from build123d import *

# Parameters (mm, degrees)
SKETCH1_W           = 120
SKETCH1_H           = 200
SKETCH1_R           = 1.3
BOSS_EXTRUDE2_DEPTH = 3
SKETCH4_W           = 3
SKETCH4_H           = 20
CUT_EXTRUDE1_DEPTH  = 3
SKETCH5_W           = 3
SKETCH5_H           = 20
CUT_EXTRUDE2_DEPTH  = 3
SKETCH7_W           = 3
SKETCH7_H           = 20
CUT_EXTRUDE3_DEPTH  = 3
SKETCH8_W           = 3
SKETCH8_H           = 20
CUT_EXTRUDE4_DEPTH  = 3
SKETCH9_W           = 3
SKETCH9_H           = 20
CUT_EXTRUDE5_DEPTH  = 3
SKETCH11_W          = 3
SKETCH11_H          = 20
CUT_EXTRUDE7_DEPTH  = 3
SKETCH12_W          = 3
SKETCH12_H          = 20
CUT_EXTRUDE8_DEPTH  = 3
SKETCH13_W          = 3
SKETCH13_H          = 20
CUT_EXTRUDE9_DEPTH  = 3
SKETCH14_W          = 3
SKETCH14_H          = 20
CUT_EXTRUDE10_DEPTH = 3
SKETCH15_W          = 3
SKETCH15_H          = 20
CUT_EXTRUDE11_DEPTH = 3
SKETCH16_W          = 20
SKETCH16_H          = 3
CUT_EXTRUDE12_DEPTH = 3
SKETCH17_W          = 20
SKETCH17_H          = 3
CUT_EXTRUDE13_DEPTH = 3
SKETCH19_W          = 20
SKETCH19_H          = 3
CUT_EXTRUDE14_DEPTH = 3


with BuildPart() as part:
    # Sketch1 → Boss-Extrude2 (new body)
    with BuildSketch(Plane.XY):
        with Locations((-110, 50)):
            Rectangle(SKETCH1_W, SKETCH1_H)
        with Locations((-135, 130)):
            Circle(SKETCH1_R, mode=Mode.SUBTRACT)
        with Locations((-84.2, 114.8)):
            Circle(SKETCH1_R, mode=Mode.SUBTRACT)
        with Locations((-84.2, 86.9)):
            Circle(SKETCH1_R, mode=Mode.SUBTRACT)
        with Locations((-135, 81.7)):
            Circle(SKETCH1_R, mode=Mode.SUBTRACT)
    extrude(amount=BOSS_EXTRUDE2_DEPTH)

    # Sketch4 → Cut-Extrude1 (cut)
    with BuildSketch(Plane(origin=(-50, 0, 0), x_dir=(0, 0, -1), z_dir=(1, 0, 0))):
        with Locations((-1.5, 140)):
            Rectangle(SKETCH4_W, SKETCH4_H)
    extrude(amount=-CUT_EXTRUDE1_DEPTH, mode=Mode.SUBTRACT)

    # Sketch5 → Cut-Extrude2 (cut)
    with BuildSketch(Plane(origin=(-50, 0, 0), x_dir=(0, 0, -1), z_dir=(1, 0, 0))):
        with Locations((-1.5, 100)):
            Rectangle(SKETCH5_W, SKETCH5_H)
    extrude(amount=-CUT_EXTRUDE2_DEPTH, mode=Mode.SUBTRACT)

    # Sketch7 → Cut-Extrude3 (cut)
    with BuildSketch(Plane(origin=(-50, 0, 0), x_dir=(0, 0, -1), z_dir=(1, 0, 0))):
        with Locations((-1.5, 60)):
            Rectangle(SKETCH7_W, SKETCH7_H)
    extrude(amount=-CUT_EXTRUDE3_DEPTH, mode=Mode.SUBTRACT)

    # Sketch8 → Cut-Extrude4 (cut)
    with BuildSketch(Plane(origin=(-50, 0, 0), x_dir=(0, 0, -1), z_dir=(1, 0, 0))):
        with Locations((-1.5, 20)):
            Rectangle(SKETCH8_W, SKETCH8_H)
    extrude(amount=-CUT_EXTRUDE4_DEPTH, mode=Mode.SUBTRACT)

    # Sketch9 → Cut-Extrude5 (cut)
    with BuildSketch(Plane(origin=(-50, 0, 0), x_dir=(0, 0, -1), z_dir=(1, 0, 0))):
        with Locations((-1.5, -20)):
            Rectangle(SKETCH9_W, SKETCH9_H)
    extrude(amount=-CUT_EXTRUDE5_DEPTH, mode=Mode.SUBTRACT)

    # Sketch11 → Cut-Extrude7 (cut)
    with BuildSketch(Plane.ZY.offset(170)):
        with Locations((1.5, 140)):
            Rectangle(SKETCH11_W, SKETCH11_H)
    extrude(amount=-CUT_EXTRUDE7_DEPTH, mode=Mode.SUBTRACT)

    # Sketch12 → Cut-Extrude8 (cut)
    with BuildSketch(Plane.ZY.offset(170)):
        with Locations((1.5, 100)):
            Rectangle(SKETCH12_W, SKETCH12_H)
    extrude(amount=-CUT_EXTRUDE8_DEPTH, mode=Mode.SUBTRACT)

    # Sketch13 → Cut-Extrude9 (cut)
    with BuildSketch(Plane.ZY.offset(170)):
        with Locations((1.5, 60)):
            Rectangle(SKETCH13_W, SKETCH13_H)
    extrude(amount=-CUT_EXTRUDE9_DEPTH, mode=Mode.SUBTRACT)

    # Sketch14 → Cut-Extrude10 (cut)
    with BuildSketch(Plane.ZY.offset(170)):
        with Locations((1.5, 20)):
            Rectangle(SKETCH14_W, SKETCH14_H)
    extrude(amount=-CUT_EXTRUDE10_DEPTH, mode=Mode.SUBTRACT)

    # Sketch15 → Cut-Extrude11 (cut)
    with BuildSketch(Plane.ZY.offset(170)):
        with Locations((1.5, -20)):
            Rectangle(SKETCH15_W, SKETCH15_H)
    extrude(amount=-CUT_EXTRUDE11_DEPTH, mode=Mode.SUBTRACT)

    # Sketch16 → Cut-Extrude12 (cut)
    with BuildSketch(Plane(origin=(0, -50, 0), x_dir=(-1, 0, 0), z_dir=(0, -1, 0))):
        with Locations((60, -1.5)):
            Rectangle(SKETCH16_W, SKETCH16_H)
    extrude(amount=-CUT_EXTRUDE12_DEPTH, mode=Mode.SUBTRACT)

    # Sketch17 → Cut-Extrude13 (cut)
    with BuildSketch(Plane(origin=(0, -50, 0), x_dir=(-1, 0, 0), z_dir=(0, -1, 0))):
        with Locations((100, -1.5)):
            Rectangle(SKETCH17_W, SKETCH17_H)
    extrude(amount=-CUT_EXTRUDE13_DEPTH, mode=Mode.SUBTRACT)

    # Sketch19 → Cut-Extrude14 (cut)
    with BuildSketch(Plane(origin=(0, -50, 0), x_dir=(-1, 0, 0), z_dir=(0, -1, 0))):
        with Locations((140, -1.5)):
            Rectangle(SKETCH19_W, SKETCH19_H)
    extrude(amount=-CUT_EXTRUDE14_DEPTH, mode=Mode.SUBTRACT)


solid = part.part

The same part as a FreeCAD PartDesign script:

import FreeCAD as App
import Part
import Sketcher

V = App.Vector

doc = App.newDocument("Part")
params = doc.addObject("Spreadsheet::Sheet", "Params")
for row, (alias, value) in enumerate([
    ("sketch1_diameter", "2.6 mm"),
    ("sketch1_width", "120 mm"),
    ("sketch1_height", "200 mm"),
    ("pad1_length", "3 mm"),
    ("sketch2_width", "20 mm"),
    ("sketch2_height", "3 mm"),
    ("pocket1_length", "3 mm"),
    ("sketch3_width", "20 mm"),
    ("sketch3_height", "3 mm"),
    ("pocket2_length", "3 mm"),
    ("sketch4_width", "20 mm"),
    ("sketch4_height", "3 mm"),
    ("pocket3_length", "3 mm"),
    ("sketch5_width", "20 mm"),
    ("sketch5_height", "3 mm"),
    ("pocket4_length", "3 mm"),
    ("sketch6_width", "20 mm"),
    ("sketch6_height", "3 mm"),
    ("pocket5_length", "3 mm"),
    ("sketch7_width", "20 mm"),
    ("sketch7_height", "3 mm"),
    ("pocket6_length", "3 mm"),
    ("sketch8_width", "20 mm"),
    ("sketch8_height", "3 mm"),
    ("pocket7_length", "3 mm"),
    ("sketch9_width", "20 mm"),
    ("sketch9_height", "3 mm"),
    ("pocket8_length", "3 mm"),
    ("sketch10_width", "20 mm"),
    ("sketch10_height", "3 mm"),
    ("pocket9_length", "3 mm"),
    ("sketch11_width", "20 mm"),
    ("sketch11_height", "3 mm"),
    ("pocket10_length", "3 mm"),
    ("sketch12_width", "20 mm"),
    ("sketch12_height", "3 mm"),
    ("pocket11_length", "3 mm"),
    ("sketch13_width", "20 mm"),
    ("sketch13_height", "3 mm"),
    ("pocket12_length", "3 mm"),
    ("sketch14_width", "20 mm"),
    ("sketch14_height", "3 mm"),
    ("pocket13_length", "3 mm"),
], start=1):
    params.set(f"A{row}", alias)
    params.set(f"B{row}", "=" + value)
    params.setAlias(f"B{row}", alias)

body = doc.addObject("PartDesign::Body", "Body")

sketch1 = body.newObject("Sketcher::SketchObject", "Sketch")
sketch1.AttachmentSupport = (doc.getObject("XY_Plane"), [""])
sketch1.MapMode = "FlatFace"
sketch1.addGeometry(Part.LineSegment(V(-170, 150, 0), V(-170, -50, 0)), False)
sketch1.addGeometry(Part.LineSegment(V(-170, -50, 0), V(-50, -50, 0)), False)
sketch1.addGeometry(Part.LineSegment(V(-50, -50, 0), V(-50, 150, 0)), False)
sketch1.addGeometry(Part.LineSegment(V(-50, 150, 0), V(-170, 150, 0)), False)
sketch1.addGeometry(Part.Circle(V(-135, 81.7, 0), V(0, 0, 1), 1.3), False)
sketch1.addGeometry(Part.Circle(V(-84.2, 86.9, 0), V(0, 0, 1), 1.3), False)
sketch1.addGeometry(Part.Circle(V(-135, 130, 0), V(0, 0, 1), 1.3), False)
sketch1.addGeometry(Part.Circle(V(-84.2, 114.8, 0), V(0, 0, 1), 1.3), False)
sketch1.addConstraint(Sketcher.Constraint("Coincident", 0, 2, 1, 1))
sketch1.addConstraint(Sketcher.Constraint("Coincident", 1, 2, 2, 1))
sketch1.addConstraint(Sketcher.Constraint("Coincident", 2, 2, 3, 1))
sketch1.addConstraint(Sketcher.Constraint("Coincident", 3, 2, 0, 1))
sketch1.addConstraint(Sketcher.Constraint("Vertical", 0))
sketch1.addConstraint(Sketcher.Constraint("Horizontal", 1))
sketch1.addConstraint(Sketcher.Constraint("Vertical", 2))
sketch1.addConstraint(Sketcher.Constraint("Horizontal", 3))
sketch1.addConstraint(Sketcher.Constraint("Equal", 4, 5))
sketch1.addConstraint(Sketcher.Constraint("Equal", 5, 6))
sketch1.addConstraint(Sketcher.Constraint("Equal", 6, 7))
sketch1.addConstraint(Sketcher.Constraint("Vertical", 4, 3, 6, 3))
sketch1.addConstraint(Sketcher.Constraint("Vertical", 5, 3, 7, 3))
sketch1.addConstraint(Sketcher.Constraint("Diameter", 4, 2.6))
sketch1.addConstraint(Sketcher.Constraint("DistanceX", 1, 1, 1, 2, 120.0))
sketch1.addConstraint(Sketcher.Constraint("DistanceY", 0, 2, 0, 1, 200.0))
sketch1.addConstraint(Sketcher.Constraint("DistanceX", 4, 3, -1, 1, 135.0))
sketch1.addConstraint(Sketcher.Constraint("DistanceY", -1, 1, 6, 3, 130.0))
sketch1.addConstraint(Sketcher.Constraint("DistanceX", 0, 2, -1, 1, 170.0))
sketch1.addConstraint(Sketcher.Constraint("DistanceY", 0, 2, -1, 1, 50.0))
sketch1.addConstraint(Sketcher.Constraint("DistanceY", -1, 1, 4, 3, 81.7))
sketch1.addConstraint(Sketcher.Constraint("DistanceX", 5, 3, -1, 1, 84.2))
sketch1.addConstraint(Sketcher.Constraint("DistanceY", -1, 1, 5, 3, 86.9))
sketch1.addConstraint(Sketcher.Constraint("DistanceY", -1, 1, 7, 3, 114.8))
sketch1.setExpression("Constraints[13]", "Params.sketch1_diameter")
sketch1.setExpression("Constraints[14]", "Params.sketch1_width")
sketch1.setExpression("Constraints[15]", "Params.sketch1_height")
pad1 = body.newObject("PartDesign::Pad", "Pad")
pad1.Profile = sketch1
pad1.setExpression("Length", "Params.pad1_length")

sketch2 = body.newObject("Sketcher::SketchObject", "Sketch001")
sketch2.AttachmentSupport = (doc.getObject("YZ_Plane"), [""])
sketch2.MapMode = "FlatFace"
sketch2.AttachmentOffset = App.Placement(V(0, 0, -50), App.Rotation())
sketch2.addGeometry(Part.LineSegment(V(150, 3, 0), V(130, 3, 0)), False)
sketch2.addGeometry(Part.LineSegment(V(130, 3, 0), V(130, 0, 0)), False)
sketch2.addGeometry(Part.LineSegment(V(130, 0, 0), V(150, 0, 0)), False)
sketch2.addGeometry(Part.LineSegment(V(150, 0, 0), V(150, 3, 0)), False)
sketch2.addConstraint(Sketcher.Constraint("Coincident", 0, 2, 1, 1))
sketch2.addConstraint(Sketcher.Constraint("Coincident", 1, 2, 2, 1))
sketch2.addConstraint(Sketcher.Constraint("Coincident", 2, 2, 3, 1))
sketch2.addConstraint(Sketcher.Constraint("Coincident", 3, 2, 0, 1))
sketch2.addConstraint(Sketcher.Constraint("Horizontal", 0))
sketch2.addConstraint(Sketcher.Constraint("Vertical", 1))
sketch2.addConstraint(Sketcher.Constraint("Horizontal", 2))
sketch2.addConstraint(Sketcher.Constraint("Vertical", 3))
sketch2.addConstraint(Sketcher.Constraint("PointOnObject", 1, 2, -1))
sketch2.addConstraint(Sketcher.Constraint("DistanceX", 0, 2, 0, 1, 20.0))
sketch2.addConstraint(Sketcher.Constraint("DistanceY", 1, 2, 1, 1, 3.0))
sketch2.addConstraint(Sketcher.Constraint("DistanceX", -1, 1, 0, 2, 130.0))
sketch2.setExpression("Constraints[9]", "Params.sketch2_width")
sketch2.setExpression("Constraints[10]", "Params.sketch2_height")
pocket1 = body.newObject("PartDesign::Pocket", "Pocket")
pocket1.Profile = sketch2
pocket1.setExpression("Length", "Params.pocket1_length")

sketch3 = body.newObject("Sketcher::SketchObject", "Sketch002")
sketch3.AttachmentSupport = (doc.getObject("YZ_Plane"), [""])
sketch3.MapMode = "FlatFace"
sketch3.AttachmentOffset = App.Placement(V(0, 0, -50), App.Rotation())
sketch3.addGeometry(Part.LineSegment(V(110, 3, 0), V(90, 3, 0)), False)
sketch3.addGeometry(Part.LineSegment(V(90, 3, 0), V(90, 0, 0)), False)
sketch3.addGeometry(Part.LineSegment(V(90, 0, 0), V(110, 0, 0)), False)
sketch3.addGeometry(Part.LineSegment(V(110, 0, 0), V(110, 3, 0)), False)
sketch3.addConstraint(Sketcher.Constraint("Coincident", 0, 2, 1, 1))
sketch3.addConstraint(Sketcher.Constraint("Coincident", 1, 2, 2, 1))
sketch3.addConstraint(Sketcher.Constraint("Coincident", 2, 2, 3, 1))
sketch3.addConstraint(Sketcher.Constraint("Coincident", 3, 2, 0, 1))
sketch3.addConstraint(Sketcher.Constraint("Horizontal", 0))
sketch3.addConstraint(Sketcher.Constraint("Vertical", 1))
sketch3.addConstraint(Sketcher.Constraint("Horizontal", 2))
sketch3.addConstraint(Sketcher.Constraint("Vertical", 3))
sketch3.addConstraint(Sketcher.Constraint("PointOnObject", 1, 2, -1))
sketch3.addConstraint(Sketcher.Constraint("DistanceX", 0, 2, 0, 1, 20.0))
sketch3.addConstraint(Sketcher.Constraint("DistanceY", 1, 2, 1, 1, 3.0))
sketch3.addConstraint(Sketcher.Constraint("DistanceX", -1, 1, 0, 2, 90.0))
sketch3.setExpression("Constraints[9]", "Params.sketch3_width")
sketch3.setExpression("Constraints[10]", "Params.sketch3_height")
pocket2 = body.newObject("PartDesign::Pocket", "Pocket001")
pocket2.Profile = sketch3
pocket2.setExpression("Length", "Params.pocket2_length")

sketch4 = body.newObject("Sketcher::SketchObject", "Sketch003")
sketch4.AttachmentSupport = (doc.getObject("YZ_Plane"), [""])
sketch4.MapMode = "FlatFace"
sketch4.AttachmentOffset = App.Placement(V(0, 0, -50), App.Rotation())
sketch4.addGeometry(Part.LineSegment(V(70, 3, 0), V(50, 3, 0)), False)
sketch4.addGeometry(Part.LineSegment(V(50, 3, 0), V(50, 0, 0)), False)
sketch4.addGeometry(Part.LineSegment(V(50, 0, 0), V(70, 0, 0)), False)
sketch4.addGeometry(Part.LineSegment(V(70, 0, 0), V(70, 3, 0)), False)
sketch4.addConstraint(Sketcher.Constraint("Coincident", 0, 2, 1, 1))
sketch4.addConstraint(Sketcher.Constraint("Coincident", 1, 2, 2, 1))
sketch4.addConstraint(Sketcher.Constraint("Coincident", 2, 2, 3, 1))
sketch4.addConstraint(Sketcher.Constraint("Coincident", 3, 2, 0, 1))
sketch4.addConstraint(Sketcher.Constraint("Horizontal", 0))
sketch4.addConstraint(Sketcher.Constraint("Vertical", 1))
sketch4.addConstraint(Sketcher.Constraint("Horizontal", 2))
sketch4.addConstraint(Sketcher.Constraint("Vertical", 3))
sketch4.addConstraint(Sketcher.Constraint("PointOnObject", 1, 2, -1))
sketch4.addConstraint(Sketcher.Constraint("DistanceX", 0, 2, 0, 1, 20.0))
sketch4.addConstraint(Sketcher.Constraint("DistanceY", 1, 2, 1, 1, 3.0))
sketch4.addConstraint(Sketcher.Constraint("DistanceX", -1, 1, 0, 2, 50.0))
sketch4.setExpression("Constraints[9]", "Params.sketch4_width")
sketch4.setExpression("Constraints[10]", "Params.sketch4_height")
pocket3 = body.newObject("PartDesign::Pocket", "Pocket002")
pocket3.Profile = sketch4
pocket3.setExpression("Length", "Params.pocket3_length")

sketch5 = body.newObject("Sketcher::SketchObject", "Sketch004")
sketch5.AttachmentSupport = (doc.getObject("YZ_Plane"), [""])
sketch5.MapMode = "FlatFace"
sketch5.AttachmentOffset = App.Placement(V(0, 0, -50), App.Rotation())
sketch5.addGeometry(Part.LineSegment(V(30, 3, 0), V(10, 3, 0)), False)
sketch5.addGeometry(Part.LineSegment(V(10, 3, 0), V(10, 0, 0)), False)
sketch5.addGeometry(Part.LineSegment(V(10, 0, 0), V(30, 0, 0)), False)
sketch5.addGeometry(Part.LineSegment(V(30, 0, 0), V(30, 3, 0)), False)
sketch5.addConstraint(Sketcher.Constraint("Coincident", 0, 2, 1, 1))
sketch5.addConstraint(Sketcher.Constraint("Coincident", 1, 2, 2, 1))
sketch5.addConstraint(Sketcher.Constraint("Coincident", 2, 2, 3, 1))
sketch5.addConstraint(Sketcher.Constraint("Coincident", 3, 2, 0, 1))
sketch5.addConstraint(Sketcher.Constraint("Horizontal", 0))
sketch5.addConstraint(Sketcher.Constraint("Vertical", 1))
sketch5.addConstraint(Sketcher.Constraint("Horizontal", 2))
sketch5.addConstraint(Sketcher.Constraint("Vertical", 3))
sketch5.addConstraint(Sketcher.Constraint("PointOnObject", 1, 2, -1))
sketch5.addConstraint(Sketcher.Constraint("DistanceX", 0, 2, 0, 1, 20.0))
sketch5.addConstraint(Sketcher.Constraint("DistanceY", 1, 2, 1, 1, 3.0))
sketch5.addConstraint(Sketcher.Constraint("DistanceX", -1, 1, 0, 2, 10.0))
sketch5.setExpression("Constraints[9]", "Params.sketch5_width")
sketch5.setExpression("Constraints[10]", "Params.sketch5_height")
pocket4 = body.newObject("PartDesign::Pocket", "Pocket003")
pocket4.Profile = sketch5
pocket4.setExpression("Length", "Params.pocket4_length")

sketch6 = body.newObject("Sketcher::SketchObject", "Sketch005")
sketch6.AttachmentSupport = (doc.getObject("YZ_Plane"), [""])
sketch6.MapMode = "FlatFace"
sketch6.AttachmentOffset = App.Placement(V(0, 0, -50), App.Rotation())
sketch6.addGeometry(Part.LineSegment(V(-10, 3, 0), V(-30, 3, 0)), False)
sketch6.addGeometry(Part.LineSegment(V(-30, 3, 0), V(-30, 0, 0)), False)
sketch6.addGeometry(Part.LineSegment(V(-30, 0, 0), V(-10, 0, 0)), False)
sketch6.addGeometry(Part.LineSegment(V(-10, 0, 0), V(-10, 3, 0)), False)
sketch6.addConstraint(Sketcher.Constraint("Coincident", 0, 2, 1, 1))
sketch6.addConstraint(Sketcher.Constraint("Coincident", 1, 2, 2, 1))
sketch6.addConstraint(Sketcher.Constraint("Coincident", 2, 2, 3, 1))
sketch6.addConstraint(Sketcher.Constraint("Coincident", 3, 2, 0, 1))
sketch6.addConstraint(Sketcher.Constraint("Horizontal", 0))
sketch6.addConstraint(Sketcher.Constraint("Vertical", 1))
sketch6.addConstraint(Sketcher.Constraint("Horizontal", 2))
sketch6.addConstraint(Sketcher.Constraint("Vertical", 3))
sketch6.addConstraint(Sketcher.Constraint("PointOnObject", 1, 2, -1))
sketch6.addConstraint(Sketcher.Constraint("DistanceX", 0, 2, 0, 1, 20.0))
sketch6.addConstraint(Sketcher.Constraint("DistanceY", 1, 2, 1, 1, 3.0))
sketch6.addConstraint(Sketcher.Constraint("DistanceX", 0, 2, -1, 1, 30.0))
sketch6.setExpression("Constraints[9]", "Params.sketch6_width")
sketch6.setExpression("Constraints[10]", "Params.sketch6_height")
pocket5 = body.newObject("PartDesign::Pocket", "Pocket004")
pocket5.Profile = sketch6
pocket5.setExpression("Length", "Params.pocket5_length")

sketch7 = body.newObject("Sketcher::SketchObject", "Sketch006")
sketch7.AttachmentSupport = (doc.getObject("YZ_Plane"), [""])
sketch7.MapMode = "FlatFace"
sketch7.AttachmentOffset = App.Placement(V(0, 0, -170), App.Rotation())
sketch7.addGeometry(Part.LineSegment(V(150, 0, 0), V(130, 0, 0)), False)
sketch7.addGeometry(Part.LineSegment(V(130, 0, 0), V(130, 3, 0)), False)
sketch7.addGeometry(Part.LineSegment(V(130, 3, 0), V(150, 3, 0)), False)
sketch7.addGeometry(Part.LineSegment(V(150, 3, 0), V(150, 0, 0)), False)
sketch7.addConstraint(Sketcher.Constraint("Coincident", 0, 2, 1, 1))
sketch7.addConstraint(Sketcher.Constraint("Coincident", 1, 2, 2, 1))
sketch7.addConstraint(Sketcher.Constraint("Coincident", 2, 2, 3, 1))
sketch7.addConstraint(Sketcher.Constraint("Coincident", 3, 2, 0, 1))
sketch7.addConstraint(Sketcher.Constraint("Horizontal", 0))
sketch7.addConstraint(Sketcher.Constraint("Vertical", 1))
sketch7.addConstraint(Sketcher.Constraint("Horizontal", 2))
sketch7.addConstraint(Sketcher.Constraint("Vertical", 3))
sketch7.addConstraint(Sketcher.Constraint("PointOnObject", 0, 2, -1))
sketch7.addConstraint(Sketcher.Constraint("DistanceX", 0, 2, 0, 1, 20.0))
sketch7.addConstraint(Sketcher.Constraint("DistanceY", 1, 1, 1, 2, 3.0))
sketch7.addConstraint(Sketcher.Constraint("DistanceX", -1, 1, 0, 2, 130.0))
sketch7.setExpression("Constraints[9]", "Params.sketch7_width")
sketch7.setExpression("Constraints[10]", "Params.sketch7_height")
pocket6 = body.newObject("PartDesign::Pocket", "Pocket005")
pocket6.Profile = sketch7
pocket6.setExpression("Length", "Params.pocket6_length")
pocket6.Reversed = True

sketch8 = body.newObject("Sketcher::SketchObject", "Sketch007")
sketch8.AttachmentSupport = (doc.getObject("YZ_Plane"), [""])
sketch8.MapMode = "FlatFace"
sketch8.AttachmentOffset = App.Placement(V(0, 0, -170), App.Rotation())
sketch8.addGeometry(Part.LineSegment(V(110, 0, 0), V(90, 0, 0)), False)
sketch8.addGeometry(Part.LineSegment(V(90, 0, 0), V(90, 3, 0)), False)
sketch8.addGeometry(Part.LineSegment(V(90, 3, 0), V(110, 3, 0)), False)
sketch8.addGeometry(Part.LineSegment(V(110, 3, 0), V(110, 0, 0)), False)
sketch8.addConstraint(Sketcher.Constraint("Coincident", 0, 2, 1, 1))
sketch8.addConstraint(Sketcher.Constraint("Coincident", 1, 2, 2, 1))
sketch8.addConstraint(Sketcher.Constraint("Coincident", 2, 2, 3, 1))
sketch8.addConstraint(Sketcher.Constraint("Coincident", 3, 2, 0, 1))
sketch8.addConstraint(Sketcher.Constraint("Horizontal", 0))
sketch8.addConstraint(Sketcher.Constraint("Vertical", 1))
sketch8.addConstraint(Sketcher.Constraint("Horizontal", 2))
sketch8.addConstraint(Sketcher.Constraint("Vertical", 3))
sketch8.addConstraint(Sketcher.Constraint("PointOnObject", 0, 2, -1))
sketch8.addConstraint(Sketcher.Constraint("DistanceX", 0, 2, 0, 1, 20.0))
sketch8.addConstraint(Sketcher.Constraint("DistanceY", 1, 1, 1, 2, 3.0))
sketch8.addConstraint(Sketcher.Constraint("DistanceX", -1, 1, 0, 2, 90.0))
sketch8.setExpression("Constraints[9]", "Params.sketch8_width")
sketch8.setExpression("Constraints[10]", "Params.sketch8_height")
pocket7 = body.newObject("PartDesign::Pocket", "Pocket006")
pocket7.Profile = sketch8
pocket7.setExpression("Length", "Params.pocket7_length")
pocket7.Reversed = True

sketch9 = body.newObject("Sketcher::SketchObject", "Sketch008")
sketch9.AttachmentSupport = (doc.getObject("YZ_Plane"), [""])
sketch9.MapMode = "FlatFace"
sketch9.AttachmentOffset = App.Placement(V(0, 0, -170), App.Rotation())
sketch9.addGeometry(Part.LineSegment(V(70, 0, 0), V(50, 0, 0)), False)
sketch9.addGeometry(Part.LineSegment(V(50, 0, 0), V(50, 3, 0)), False)
sketch9.addGeometry(Part.LineSegment(V(50, 3, 0), V(70, 3, 0)), False)
sketch9.addGeometry(Part.LineSegment(V(70, 3, 0), V(70, 0, 0)), False)
sketch9.addConstraint(Sketcher.Constraint("Coincident", 0, 2, 1, 1))
sketch9.addConstraint(Sketcher.Constraint("Coincident", 1, 2, 2, 1))
sketch9.addConstraint(Sketcher.Constraint("Coincident", 2, 2, 3, 1))
sketch9.addConstraint(Sketcher.Constraint("Coincident", 3, 2, 0, 1))
sketch9.addConstraint(Sketcher.Constraint("Horizontal", 0))
sketch9.addConstraint(Sketcher.Constraint("Vertical", 1))
sketch9.addConstraint(Sketcher.Constraint("Horizontal", 2))
sketch9.addConstraint(Sketcher.Constraint("Vertical", 3))
sketch9.addConstraint(Sketcher.Constraint("PointOnObject", 0, 2, -1))
sketch9.addConstraint(Sketcher.Constraint("DistanceX", 0, 2, 0, 1, 20.0))
sketch9.addConstraint(Sketcher.Constraint("DistanceY", 1, 1, 1, 2, 3.0))
sketch9.addConstraint(Sketcher.Constraint("DistanceX", -1, 1, 0, 2, 50.0))
sketch9.setExpression("Constraints[9]", "Params.sketch9_width")
sketch9.setExpression("Constraints[10]", "Params.sketch9_height")
pocket8 = body.newObject("PartDesign::Pocket", "Pocket007")
pocket8.Profile = sketch9
pocket8.setExpression("Length", "Params.pocket8_length")
pocket8.Reversed = True

sketch10 = body.newObject("Sketcher::SketchObject", "Sketch009")
sketch10.AttachmentSupport = (doc.getObject("YZ_Plane"), [""])
sketch10.MapMode = "FlatFace"
sketch10.AttachmentOffset = App.Placement(V(0, 0, -170), App.Rotation())
sketch10.addGeometry(Part.LineSegment(V(30, 0, 0), V(10, 0, 0)), False)
sketch10.addGeometry(Part.LineSegment(V(10, 0, 0), V(10, 3, 0)), False)
sketch10.addGeometry(Part.LineSegment(V(10, 3, 0), V(30, 3, 0)), False)
sketch10.addGeometry(Part.LineSegment(V(30, 3, 0), V(30, 0, 0)), False)
sketch10.addConstraint(Sketcher.Constraint("Coincident", 0, 2, 1, 1))
sketch10.addConstraint(Sketcher.Constraint("Coincident", 1, 2, 2, 1))
sketch10.addConstraint(Sketcher.Constraint("Coincident", 2, 2, 3, 1))
sketch10.addConstraint(Sketcher.Constraint("Coincident", 3, 2, 0, 1))
sketch10.addConstraint(Sketcher.Constraint("Horizontal", 0))
sketch10.addConstraint(Sketcher.Constraint("Vertical", 1))
sketch10.addConstraint(Sketcher.Constraint("Horizontal", 2))
sketch10.addConstraint(Sketcher.Constraint("Vertical", 3))
sketch10.addConstraint(Sketcher.Constraint("PointOnObject", 0, 2, -1))
sketch10.addConstraint(Sketcher.Constraint("DistanceX", 0, 2, 0, 1, 20.0))
sketch10.addConstraint(Sketcher.Constraint("DistanceY", 1, 1, 1, 2, 3.0))
sketch10.addConstraint(Sketcher.Constraint("DistanceX", -1, 1, 0, 2, 10.0))
sketch10.setExpression("Constraints[9]", "Params.sketch10_width")
sketch10.setExpression("Constraints[10]", "Params.sketch10_height")
pocket9 = body.newObject("PartDesign::Pocket", "Pocket008")
pocket9.Profile = sketch10
pocket9.setExpression("Length", "Params.pocket9_length")
pocket9.Reversed = True

sketch11 = body.newObject("Sketcher::SketchObject", "Sketch010")
sketch11.AttachmentSupport = (doc.getObject("YZ_Plane"), [""])
sketch11.MapMode = "FlatFace"
sketch11.AttachmentOffset = App.Placement(V(0, 0, -170), App.Rotation())
sketch11.addGeometry(Part.LineSegment(V(-10, 0, 0), V(-30, 0, 0)), False)
sketch11.addGeometry(Part.LineSegment(V(-30, 0, 0), V(-30, 3, 0)), False)
sketch11.addGeometry(Part.LineSegment(V(-30, 3, 0), V(-10, 3, 0)), False)
sketch11.addGeometry(Part.LineSegment(V(-10, 3, 0), V(-10, 0, 0)), False)
sketch11.addConstraint(Sketcher.Constraint("Coincident", 0, 2, 1, 1))
sketch11.addConstraint(Sketcher.Constraint("Coincident", 1, 2, 2, 1))
sketch11.addConstraint(Sketcher.Constraint("Coincident", 2, 2, 3, 1))
sketch11.addConstraint(Sketcher.Constraint("Coincident", 3, 2, 0, 1))
sketch11.addConstraint(Sketcher.Constraint("Horizontal", 0))
sketch11.addConstraint(Sketcher.Constraint("Vertical", 1))
sketch11.addConstraint(Sketcher.Constraint("Horizontal", 2))
sketch11.addConstraint(Sketcher.Constraint("Vertical", 3))
sketch11.addConstraint(Sketcher.Constraint("PointOnObject", 0, 2, -1))
sketch11.addConstraint(Sketcher.Constraint("DistanceX", 0, 2, 0, 1, 20.0))
sketch11.addConstraint(Sketcher.Constraint("DistanceY", 1, 1, 1, 2, 3.0))
sketch11.addConstraint(Sketcher.Constraint("DistanceX", 0, 2, -1, 1, 30.0))
sketch11.setExpression("Constraints[9]", "Params.sketch11_width")
sketch11.setExpression("Constraints[10]", "Params.sketch11_height")
pocket10 = body.newObject("PartDesign::Pocket", "Pocket009")
pocket10.Profile = sketch11
pocket10.setExpression("Length", "Params.pocket10_length")
pocket10.Reversed = True

sketch12 = body.newObject("Sketcher::SketchObject", "Sketch011")
sketch12.AttachmentSupport = (doc.getObject("XZ_Plane"), [""])
sketch12.MapMode = "FlatFace"
sketch12.AttachmentOffset = App.Placement(V(0, 0, 50), App.Rotation())
sketch12.addGeometry(Part.LineSegment(V(-50, 0, 0), V(-50, 3, 0)), False)
sketch12.addGeometry(Part.LineSegment(V(-50, 3, 0), V(-70, 3, 0)), False)
sketch12.addGeometry(Part.LineSegment(V(-70, 3, 0), V(-70, 0, 0)), False)
sketch12.addGeometry(Part.LineSegment(V(-70, 0, 0), V(-50, 0, 0)), False)
sketch12.addConstraint(Sketcher.Constraint("Coincident", 0, 2, 1, 1))
sketch12.addConstraint(Sketcher.Constraint("Coincident", 1, 2, 2, 1))
sketch12.addConstraint(Sketcher.Constraint("Coincident", 2, 2, 3, 1))
sketch12.addConstraint(Sketcher.Constraint("Coincident", 3, 2, 0, 1))
sketch12.addConstraint(Sketcher.Constraint("Vertical", 0))
sketch12.addConstraint(Sketcher.Constraint("Horizontal", 1))
sketch12.addConstraint(Sketcher.Constraint("Vertical", 2))
sketch12.addConstraint(Sketcher.Constraint("Horizontal", 3))
sketch12.addConstraint(Sketcher.Constraint("PointOnObject", 2, 2, -1))
sketch12.addConstraint(Sketcher.Constraint("DistanceX", 1, 2, 1, 1, 20.0))
sketch12.addConstraint(Sketcher.Constraint("DistanceY", 0, 1, 0, 2, 3.0))
sketch12.addConstraint(Sketcher.Constraint("DistanceX", 0, 2, -1, 1, 50.0))
sketch12.setExpression("Constraints[9]", "Params.sketch12_width")
sketch12.setExpression("Constraints[10]", "Params.sketch12_height")
pocket11 = body.newObject("PartDesign::Pocket", "Pocket010")
pocket11.Profile = sketch12
pocket11.setExpression("Length", "Params.pocket11_length")

sketch13 = body.newObject("Sketcher::SketchObject", "Sketch012")
sketch13.AttachmentSupport = (doc.getObject("XZ_Plane"), [""])
sketch13.MapMode = "FlatFace"
sketch13.AttachmentOffset = App.Placement(V(0, 0, 50), App.Rotation())
sketch13.addGeometry(Part.LineSegment(V(-90, 0, 0), V(-90, 3, 0)), False)
sketch13.addGeometry(Part.LineSegment(V(-90, 3, 0), V(-110, 3, 0)), False)
sketch13.addGeometry(Part.LineSegment(V(-110, 3, 0), V(-110, 0, 0)), False)
sketch13.addGeometry(Part.LineSegment(V(-110, 0, 0), V(-90, 0, 0)), False)
sketch13.addConstraint(Sketcher.Constraint("Coincident", 0, 2, 1, 1))
sketch13.addConstraint(Sketcher.Constraint("Coincident", 1, 2, 2, 1))
sketch13.addConstraint(Sketcher.Constraint("Coincident", 2, 2, 3, 1))
sketch13.addConstraint(Sketcher.Constraint("Coincident", 3, 2, 0, 1))
sketch13.addConstraint(Sketcher.Constraint("Vertical", 0))
sketch13.addConstraint(Sketcher.Constraint("Horizontal", 1))
sketch13.addConstraint(Sketcher.Constraint("Vertical", 2))
sketch13.addConstraint(Sketcher.Constraint("Horizontal", 3))
sketch13.addConstraint(Sketcher.Constraint("PointOnObject", 2, 2, -1))
sketch13.addConstraint(Sketcher.Constraint("DistanceX", 1, 2, 1, 1, 20.0))
sketch13.addConstraint(Sketcher.Constraint("DistanceY", 0, 1, 0, 2, 3.0))
sketch13.addConstraint(Sketcher.Constraint("DistanceX", 0, 2, -1, 1, 90.0))
sketch13.setExpression("Constraints[9]", "Params.sketch13_width")
sketch13.setExpression("Constraints[10]", "Params.sketch13_height")
pocket12 = body.newObject("PartDesign::Pocket", "Pocket011")
pocket12.Profile = sketch13
pocket12.setExpression("Length", "Params.pocket12_length")

sketch14 = body.newObject("Sketcher::SketchObject", "Sketch013")
sketch14.AttachmentSupport = (doc.getObject("XZ_Plane"), [""])
sketch14.MapMode = "FlatFace"
sketch14.AttachmentOffset = App.Placement(V(0, 0, 50), App.Rotation())
sketch14.addGeometry(Part.LineSegment(V(-130, 0, 0), V(-130, 3, 0)), False)
sketch14.addGeometry(Part.LineSegment(V(-130, 3, 0), V(-150, 3, 0)), False)
sketch14.addGeometry(Part.LineSegment(V(-150, 3, 0), V(-150, 0, 0)), False)
sketch14.addGeometry(Part.LineSegment(V(-150, 0, 0), V(-130, 0, 0)), False)
sketch14.addConstraint(Sketcher.Constraint("Coincident", 0, 2, 1, 1))
sketch14.addConstraint(Sketcher.Constraint("Coincident", 1, 2, 2, 1))
sketch14.addConstraint(Sketcher.Constraint("Coincident", 2, 2, 3, 1))
sketch14.addConstraint(Sketcher.Constraint("Coincident", 3, 2, 0, 1))
sketch14.addConstraint(Sketcher.Constraint("Vertical", 0))
sketch14.addConstraint(Sketcher.Constraint("Horizontal", 1))
sketch14.addConstraint(Sketcher.Constraint("Vertical", 2))
sketch14.addConstraint(Sketcher.Constraint("Horizontal", 3))
sketch14.addConstraint(Sketcher.Constraint("PointOnObject", 2, 2, -1))
sketch14.addConstraint(Sketcher.Constraint("DistanceX", 1, 2, 1, 1, 20.0))
sketch14.addConstraint(Sketcher.Constraint("DistanceY", 0, 1, 0, 2, 3.0))
sketch14.addConstraint(Sketcher.Constraint("DistanceX", 0, 2, -1, 1, 130.0))
sketch14.setExpression("Constraints[9]", "Params.sketch14_width")
sketch14.setExpression("Constraints[10]", "Params.sketch14_height")
pocket13 = body.newObject("PartDesign::Pocket", "Pocket012")
pocket13.Profile = sketch14
pocket13.setExpression("Length", "Params.pocket13_length")

doc.recompute()
